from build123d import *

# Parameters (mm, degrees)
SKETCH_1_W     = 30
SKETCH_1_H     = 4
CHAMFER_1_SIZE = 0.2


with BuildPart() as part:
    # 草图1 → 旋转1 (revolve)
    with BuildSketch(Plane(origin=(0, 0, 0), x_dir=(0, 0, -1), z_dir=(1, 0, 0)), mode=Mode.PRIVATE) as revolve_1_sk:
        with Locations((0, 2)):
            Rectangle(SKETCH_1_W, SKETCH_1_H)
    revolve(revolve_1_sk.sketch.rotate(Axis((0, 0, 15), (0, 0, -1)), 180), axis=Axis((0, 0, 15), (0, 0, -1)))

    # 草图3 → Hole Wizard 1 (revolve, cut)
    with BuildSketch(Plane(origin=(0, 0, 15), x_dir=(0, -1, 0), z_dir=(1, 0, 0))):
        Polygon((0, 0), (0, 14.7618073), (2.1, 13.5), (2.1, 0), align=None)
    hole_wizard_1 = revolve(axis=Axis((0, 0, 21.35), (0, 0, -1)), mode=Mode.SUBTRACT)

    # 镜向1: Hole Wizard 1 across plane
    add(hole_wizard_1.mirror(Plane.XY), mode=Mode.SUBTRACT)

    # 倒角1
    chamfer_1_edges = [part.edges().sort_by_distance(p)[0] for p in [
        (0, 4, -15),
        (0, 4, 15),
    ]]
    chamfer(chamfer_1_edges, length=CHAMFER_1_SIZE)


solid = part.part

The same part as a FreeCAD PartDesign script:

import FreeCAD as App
import Part
import Sketcher
from FreeCAD import Vector
Q = App.Units.Quantity


def edges_at(feature, points):
    """Names of the edges that pass closest to the given points."""
    edges = feature.Shape.Edges
    near = lambda p: min(range(len(edges)), key=lambda i: edges[i].distToShape(Part.Vertex(*p))[0])
    return sorted({f"Edge{near(p) + 1}" for p in points})

doc = App.newDocument("Part")
body = doc.addObject("PartDesign::Body", "Body")

sketch1 = body.newObject("Sketcher::SketchObject", "Sketch")
sketch1.AttachmentSupport = (doc.getObject("YZ_Plane"), [""])
sketch1.MapMode = "FlatFace"
sketch1.addGeometry(Part.LineSegment(Vector(4, 15, 0), Vector(0, 15, 0)), False)
sketch1.addGeometry(Part.LineSegment(Vector(0, 15, 0), Vector(0, -15, 0)), False)
sketch1.addGeometry(Part.LineSegment(Vector(0, -15, 0), Vector(4, -15, 0)), False)
sketch1.addGeometry(Part.LineSegment(Vector(4, -15, 0), Vector(4, 15, 0)), False)
sketch1.addConstraint(Sketcher.Constraint("Coincident", 0, 2, 1, 1))
sketch1.addConstraint(Sketcher.Constraint("Coincident", 1, 2, 2, 1))
sketch1.addConstraint(Sketcher.Constraint("Coincident", 2, 2, 3, 1))
sketch1.addConstraint(Sketcher.Constraint("Coincident", 3, 2, 0, 1))
sketch1.addConstraint(Sketcher.Constraint("Horizontal", 0))
sketch1.addConstraint(Sketcher.Constraint("Vertical", 1))
sketch1.addConstraint(Sketcher.Constraint("Horizontal", 2))
sketch1.addConstraint(Sketcher.Constraint("Vertical", 3))
sketch1.addConstraint(Sketcher.Constraint("Symmetric", 0, 2, 1, 2, -1, 1))
sketch1.addConstraint(Sketcher.Constraint("DistanceX", 0, 2, 0, 1, 4.0))
sketch1.addConstraint(Sketcher.Constraint("DistanceY", 1, 2, 1, 1, 30.0))
revolution = body.newObject("PartDesign::Revolution", "Revolution")
revolution.Profile = sketch1
revolution.ReferenceAxis = (sketch1, ["V_Axis"])
revolution.Angle = 360

sketch2 = body.newObject("Sketcher::SketchObject", "Sketch001")
sketch2.AttachmentSupport = (doc.getObject("YZ_Plane"), [""])
sketch2.MapMode = "FlatFace"
sketch2.addGeometry(Part.LineSegment(Vector(0, 0.238193, 0), Vector(0, 15, 0)), False)
sketch2.addGeometry(Part.LineSegment(Vector(0, 15, 0), Vector(-2.1, 15, 0)), False)
sketch2.addGeometry(Part.LineSegment(Vector(-2.1, 15, 0), Vector(-2.1, 1.5, 0)), False)
sketch2.addGeometry(Part.LineSegment(Vector(-2.1, 1.5, 0), Vector(0, 0.238193, 0)), False)
sketch2.addConstraint(Sketcher.Constraint("Coincident", 0, 2, 1, 1))
sketch2.addConstraint(Sketcher.Constraint("Coincident", 1, 2, 2, 1))
sketch2.addConstraint(Sketcher.Constraint("Coincident", 2, 2, 3, 1))
sketch2.addConstraint(Sketcher.Constraint("Coincident", 3, 2, 0, 1))
sketch2.addConstraint(Sketcher.Constraint("Vertical", 0))
sketch2.addConstraint(Sketcher.Constraint("Horizontal", 1))
sketch2.addConstraint(Sketcher.Constraint("Vertical", 2))
sketch2.addConstraint(Sketcher.Constraint("PointOnObject", 0, 2, -2))
sketch2.addConstraint(Sketcher.Constraint("Angle", 3, Q("-31 deg")))
sketch2.addConstraint(Sketcher.Constraint("DistanceX", 1, 2, 1, 1, 2.1))
sketch2.addConstraint(Sketcher.Constraint("DistanceY", 2, 2, 2, 1, 13.5))
sketch2.addConstraint(Sketcher.Constraint("DistanceY", -1, 1, 0, 2, 15.0))
groove = body.newObject("PartDesign::Groove", "Groove")
groove.Profile = sketch2
groove.ReferenceAxis = (sketch2, ["V_Axis"])
groove.Angle = 360
doc.recompute()

mirrored = body.newObject("PartDesign::Mirrored", "Mirrored")
mirrored.Originals = [groove]
mirrored.MirrorPlane = (doc.getObject("XY_Plane"), [""])
body.Tip = mirrored
doc.recompute()

chamfer = body.newObject("PartDesign::Chamfer", "Chamfer")
chamfer.Base = (mirrored, edges_at(mirrored, [(0, 4, -15), (0, 4, 15)]))
chamfer.Size = 0.2

doc.recompute()
